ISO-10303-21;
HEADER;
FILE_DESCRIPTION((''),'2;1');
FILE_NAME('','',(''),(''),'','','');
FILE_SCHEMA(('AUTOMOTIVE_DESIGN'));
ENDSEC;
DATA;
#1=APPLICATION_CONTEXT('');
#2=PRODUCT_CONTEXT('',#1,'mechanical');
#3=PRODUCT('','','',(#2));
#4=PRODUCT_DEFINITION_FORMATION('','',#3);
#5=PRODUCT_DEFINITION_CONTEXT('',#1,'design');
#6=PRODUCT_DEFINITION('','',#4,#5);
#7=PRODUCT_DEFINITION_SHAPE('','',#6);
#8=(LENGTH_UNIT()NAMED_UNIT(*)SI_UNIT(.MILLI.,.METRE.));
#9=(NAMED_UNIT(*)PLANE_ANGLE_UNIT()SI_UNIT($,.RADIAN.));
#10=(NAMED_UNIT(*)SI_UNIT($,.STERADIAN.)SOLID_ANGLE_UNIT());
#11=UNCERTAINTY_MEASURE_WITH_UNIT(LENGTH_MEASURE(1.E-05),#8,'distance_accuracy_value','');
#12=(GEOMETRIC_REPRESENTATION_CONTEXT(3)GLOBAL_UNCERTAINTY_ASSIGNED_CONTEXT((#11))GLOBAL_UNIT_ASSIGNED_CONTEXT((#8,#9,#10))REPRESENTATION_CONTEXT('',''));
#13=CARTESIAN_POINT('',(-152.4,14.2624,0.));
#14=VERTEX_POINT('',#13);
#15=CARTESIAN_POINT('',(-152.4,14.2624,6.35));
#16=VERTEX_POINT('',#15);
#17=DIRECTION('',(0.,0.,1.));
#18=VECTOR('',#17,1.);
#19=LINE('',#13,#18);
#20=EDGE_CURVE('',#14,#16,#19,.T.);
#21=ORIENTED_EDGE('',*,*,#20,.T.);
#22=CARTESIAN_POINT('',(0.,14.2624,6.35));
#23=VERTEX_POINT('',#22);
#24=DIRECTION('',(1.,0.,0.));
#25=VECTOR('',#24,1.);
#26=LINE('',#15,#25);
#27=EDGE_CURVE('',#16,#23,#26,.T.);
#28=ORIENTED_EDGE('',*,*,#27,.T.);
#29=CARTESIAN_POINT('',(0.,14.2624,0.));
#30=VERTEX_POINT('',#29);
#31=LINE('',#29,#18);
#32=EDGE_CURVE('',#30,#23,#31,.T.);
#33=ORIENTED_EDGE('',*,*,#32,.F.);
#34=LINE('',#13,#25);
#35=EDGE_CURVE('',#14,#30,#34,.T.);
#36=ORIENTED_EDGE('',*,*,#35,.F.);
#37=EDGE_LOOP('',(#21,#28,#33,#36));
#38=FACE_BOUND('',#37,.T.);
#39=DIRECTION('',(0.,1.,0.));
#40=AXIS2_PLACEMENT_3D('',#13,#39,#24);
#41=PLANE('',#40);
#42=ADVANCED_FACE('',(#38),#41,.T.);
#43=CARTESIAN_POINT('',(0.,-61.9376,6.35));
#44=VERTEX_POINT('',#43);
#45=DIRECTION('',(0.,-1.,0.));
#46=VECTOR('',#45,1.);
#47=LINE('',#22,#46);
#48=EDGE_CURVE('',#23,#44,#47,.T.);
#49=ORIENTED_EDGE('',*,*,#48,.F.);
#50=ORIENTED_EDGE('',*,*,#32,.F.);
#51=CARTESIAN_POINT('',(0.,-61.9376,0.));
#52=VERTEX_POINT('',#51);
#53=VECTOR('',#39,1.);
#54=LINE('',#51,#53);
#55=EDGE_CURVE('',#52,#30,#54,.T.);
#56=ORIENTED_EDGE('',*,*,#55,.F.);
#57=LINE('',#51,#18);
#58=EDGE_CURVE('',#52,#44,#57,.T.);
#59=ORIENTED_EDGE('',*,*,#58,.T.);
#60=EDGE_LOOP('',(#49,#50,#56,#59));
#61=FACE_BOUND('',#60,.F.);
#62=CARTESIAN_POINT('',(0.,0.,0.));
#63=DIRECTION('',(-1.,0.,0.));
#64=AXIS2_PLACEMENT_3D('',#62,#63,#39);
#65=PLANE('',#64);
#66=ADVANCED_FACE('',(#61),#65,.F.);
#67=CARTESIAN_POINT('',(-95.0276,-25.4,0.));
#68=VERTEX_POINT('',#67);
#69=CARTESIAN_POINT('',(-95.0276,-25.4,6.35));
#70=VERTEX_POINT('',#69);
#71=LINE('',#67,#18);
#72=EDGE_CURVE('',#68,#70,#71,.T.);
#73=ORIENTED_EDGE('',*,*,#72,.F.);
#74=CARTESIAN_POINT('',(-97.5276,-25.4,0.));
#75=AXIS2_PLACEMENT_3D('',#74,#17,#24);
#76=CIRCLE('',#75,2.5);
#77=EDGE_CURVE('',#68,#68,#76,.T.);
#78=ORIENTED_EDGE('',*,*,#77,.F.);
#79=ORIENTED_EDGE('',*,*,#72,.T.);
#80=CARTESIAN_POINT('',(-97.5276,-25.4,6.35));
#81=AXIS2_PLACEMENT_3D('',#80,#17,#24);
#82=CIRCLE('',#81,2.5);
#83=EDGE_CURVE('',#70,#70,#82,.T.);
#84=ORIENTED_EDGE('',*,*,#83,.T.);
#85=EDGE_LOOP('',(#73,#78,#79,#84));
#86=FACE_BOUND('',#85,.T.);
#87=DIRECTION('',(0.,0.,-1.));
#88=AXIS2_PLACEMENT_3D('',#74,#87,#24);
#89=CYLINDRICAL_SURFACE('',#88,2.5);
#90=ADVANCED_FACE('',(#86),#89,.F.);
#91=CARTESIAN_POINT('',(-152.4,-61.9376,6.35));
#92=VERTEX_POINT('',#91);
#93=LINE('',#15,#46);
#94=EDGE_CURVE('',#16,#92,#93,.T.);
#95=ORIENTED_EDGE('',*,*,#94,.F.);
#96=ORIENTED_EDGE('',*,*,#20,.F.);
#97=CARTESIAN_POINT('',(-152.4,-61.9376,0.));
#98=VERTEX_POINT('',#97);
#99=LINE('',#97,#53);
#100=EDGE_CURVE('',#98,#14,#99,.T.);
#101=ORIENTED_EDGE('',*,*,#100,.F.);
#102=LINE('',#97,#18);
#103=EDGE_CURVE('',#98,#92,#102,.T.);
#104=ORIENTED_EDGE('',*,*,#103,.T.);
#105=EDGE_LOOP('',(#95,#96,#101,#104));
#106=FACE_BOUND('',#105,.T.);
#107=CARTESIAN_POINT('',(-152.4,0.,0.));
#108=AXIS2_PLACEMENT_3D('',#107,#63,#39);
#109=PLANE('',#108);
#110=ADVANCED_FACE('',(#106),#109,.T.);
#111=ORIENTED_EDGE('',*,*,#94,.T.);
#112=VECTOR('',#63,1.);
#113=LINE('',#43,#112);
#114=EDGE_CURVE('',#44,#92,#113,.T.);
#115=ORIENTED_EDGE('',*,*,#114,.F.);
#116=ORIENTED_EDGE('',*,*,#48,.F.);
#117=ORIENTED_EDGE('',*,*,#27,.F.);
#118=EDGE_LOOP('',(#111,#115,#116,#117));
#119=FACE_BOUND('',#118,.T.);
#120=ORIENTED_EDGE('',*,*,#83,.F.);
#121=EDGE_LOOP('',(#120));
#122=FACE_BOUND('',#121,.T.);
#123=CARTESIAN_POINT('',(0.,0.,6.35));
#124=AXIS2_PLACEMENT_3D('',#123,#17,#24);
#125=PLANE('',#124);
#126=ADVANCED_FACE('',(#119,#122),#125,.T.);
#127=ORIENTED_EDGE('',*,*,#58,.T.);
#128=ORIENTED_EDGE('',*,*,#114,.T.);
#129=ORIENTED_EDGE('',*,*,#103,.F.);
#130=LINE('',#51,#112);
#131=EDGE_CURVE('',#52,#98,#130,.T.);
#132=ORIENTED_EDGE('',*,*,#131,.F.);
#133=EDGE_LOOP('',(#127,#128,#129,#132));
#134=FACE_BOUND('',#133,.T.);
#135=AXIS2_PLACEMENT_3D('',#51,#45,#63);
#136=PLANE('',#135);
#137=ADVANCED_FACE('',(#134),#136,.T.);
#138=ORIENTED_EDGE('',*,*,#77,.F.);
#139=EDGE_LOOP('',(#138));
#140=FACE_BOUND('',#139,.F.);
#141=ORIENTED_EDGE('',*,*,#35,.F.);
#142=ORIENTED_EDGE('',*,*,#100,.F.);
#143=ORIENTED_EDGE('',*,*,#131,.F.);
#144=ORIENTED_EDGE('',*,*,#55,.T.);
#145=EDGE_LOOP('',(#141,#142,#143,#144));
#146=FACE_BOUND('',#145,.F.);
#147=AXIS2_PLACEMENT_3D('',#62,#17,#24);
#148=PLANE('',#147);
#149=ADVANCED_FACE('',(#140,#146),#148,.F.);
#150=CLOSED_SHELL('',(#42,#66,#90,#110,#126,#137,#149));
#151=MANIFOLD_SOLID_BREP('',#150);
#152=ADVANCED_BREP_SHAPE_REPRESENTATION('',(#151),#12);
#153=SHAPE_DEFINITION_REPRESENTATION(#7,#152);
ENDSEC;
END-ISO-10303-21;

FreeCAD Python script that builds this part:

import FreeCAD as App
import Part
import Sketcher

V = App.Vector
Q = App.Units.Quantity

doc = App.newDocument("Part")
body = doc.addObject("PartDesign::Body", "Body")

sketch1 = doc.addObject("Sketcher::SketchObject", "Sketch")
body.addObject(sketch1)
sketch1.AttachmentSupport = (doc.XY_Plane, [""])
sketch1.MapMode = "FlatFace"
sketch1.addGeometry([
    Part.LineSegment(V(0, 14.2624, 0), V(-152.4, 14.2624, 0)),
    Part.LineSegment(V(-152.4, 14.2624, 0), V(-152.4, -61.9376, 0)),
    Part.LineSegment(V(-152.4, -61.9376, 0), V(0, -61.9376, 0)),
    Part.LineSegment(V(0, -61.9376, 0), V(0, 14.2624, 0)),
    Part.Circle(V(-97.5276, -25.4, 0), V(0, 0, 1), 2.5),
], False)
sketch1.addConstraint([
    Sketcher.Constraint("Coincident", 0, 2, 1, 1),
    Sketcher.Constraint("Coincident", 1, 2, 2, 1),
    Sketcher.Constraint("Coincident", 2, 2, 3, 1),
    Sketcher.Constraint("Coincident", 3, 2, 0, 1),
    Sketcher.Constraint("Horizontal", 0),
    Sketcher.Constraint("Vertical", 1),
    Sketcher.Constraint("Horizontal", 2),
    Sketcher.Constraint("Vertical", 3),
    Sketcher.Constraint("PointOnObject", 2, 2, -2),
    Sketcher.Constraint("DistanceY", 1, 2, 1, 1, Q("3 in")),
    Sketcher.Constraint("Diameter", 4, 5.0),
    Sketcher.Constraint("DistanceX", 0, 2, 0, 1, Q("6 in")),
    Sketcher.Constraint("DistanceY", 4, 3, -1, 1, Q("1 in")),
    Sketcher.Constraint("DistanceY", -1, 1, 0, 2, Q("0.5615 in")),
    Sketcher.Constraint("DistanceX", 4, 3, -1, 1, 97.5276),
])
pad1 = doc.addObject("PartDesign::Pad", "Pad")
body.addObject(pad1)
pad1.Profile = sketch1
pad1.Length = Q("0.25 in")

doc.recompute()
